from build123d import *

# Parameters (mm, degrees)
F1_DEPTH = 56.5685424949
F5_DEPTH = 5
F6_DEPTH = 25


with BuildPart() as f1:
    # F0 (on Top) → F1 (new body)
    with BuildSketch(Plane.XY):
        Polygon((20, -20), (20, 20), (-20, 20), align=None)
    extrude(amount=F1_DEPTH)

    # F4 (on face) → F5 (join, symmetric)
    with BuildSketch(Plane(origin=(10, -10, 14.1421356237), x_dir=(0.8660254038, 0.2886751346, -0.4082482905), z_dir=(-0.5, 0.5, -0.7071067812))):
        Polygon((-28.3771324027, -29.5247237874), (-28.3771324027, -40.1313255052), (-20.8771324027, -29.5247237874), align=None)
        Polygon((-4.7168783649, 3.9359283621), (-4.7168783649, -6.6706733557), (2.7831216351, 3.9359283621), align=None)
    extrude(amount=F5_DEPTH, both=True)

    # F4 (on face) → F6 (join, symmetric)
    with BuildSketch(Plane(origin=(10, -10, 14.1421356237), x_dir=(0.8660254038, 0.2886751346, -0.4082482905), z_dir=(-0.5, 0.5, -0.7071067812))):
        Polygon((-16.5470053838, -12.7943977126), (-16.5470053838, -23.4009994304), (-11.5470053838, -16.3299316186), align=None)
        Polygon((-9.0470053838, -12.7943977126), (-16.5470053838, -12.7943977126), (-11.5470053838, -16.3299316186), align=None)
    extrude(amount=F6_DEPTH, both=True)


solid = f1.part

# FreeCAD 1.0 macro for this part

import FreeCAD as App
import Part
import Sketcher

V = App.Vector
Q = App.Units.Quantity

doc = App.newDocument("Part")
body = doc.addObject("PartDesign::Body", "Body")

sketch1 = body.newObject("Sketcher::SketchObject", "Sketch")
sketch1.AttachmentSupport = (doc.getObject("XY_Plane"), [""])
sketch1.MapMode = "FlatFace"
sketch1.addGeometry(Part.LineSegment(V(20, -20, 0), V(20, 20, 0)), False)
sketch1.addGeometry(Part.LineSegment(V(20, 20, 0), V(-20, 20, 0)), False)
sketch1.addGeometry(Part.LineSegment(V(-20, 20, 0), V(20, -20, 0)), False)
sketch1.addConstraint(Sketcher.Constraint("Coincident", 0, 2, 1, 1))
sketch1.addConstraint(Sketcher.Constraint("Coincident", 1, 2, 2, 1))
sketch1.addConstraint(Sketcher.Constraint("Coincident", 2, 2, 0, 1))
sketch1.addConstraint(Sketcher.Constraint("Vertical", 0))
sketch1.addConstraint(Sketcher.Constraint("Horizontal", 1))
sketch1.addConstraint(Sketcher.Constraint("Symmetric", 1, 2, 2, 2, -1, 1))
sketch1.addConstraint(Sketcher.Constraint("Equal", 1, 0))
sketch1.addConstraint(Sketcher.Constraint("DistanceX", 1, 2, 1, 1, Q("40 mm")))
pad1 = body.newObject("PartDesign::Pad", "Pad")
pad1.Profile = sketch1
pad1.Length = 56.568542

sketch2 = body.newObject("Sketcher::SketchObject", "Sketch001")
sketch2.Placement = App.Placement(V(10, -10, 14.142136), App.Rotation(V(0.866025404, 0.288675135, -0.40824829), V(0, -0.816496581, -0.57735027), V(-0.5, 0.5, -0.707106781), "ZXY"))
sketch2.addGeometry(Part.LineSegment(V(-28, -30, 0), V(-28, -40, 0)), False)
sketch2.addGeometry(Part.LineSegment(V(-28, -40, 0), V(-21, -30, 0)), False)
sketch2.addGeometry(Part.LineSegment(V(-21, -30, 0), V(-28, -30, 0)), False)
sketch2.addGeometry(Part.LineSegment(V(-5, 4, 0), V(-5, -7, 0)), False)
sketch2.addGeometry(Part.LineSegment(V(-5, -7, 0), V(3, 4, 0)), False)
sketch2.addGeometry(Part.LineSegment(V(3, 4, 0), V(-5, 4, 0)), False)
sketch2.addConstraint(Sketcher.Constraint("Coincident", 0, 2, 1, 1))
sketch2.addConstraint(Sketcher.Constraint("Coincident", 1, 2, 2, 1))
sketch2.addConstraint(Sketcher.Constraint("Coincident", 2, 2, 0, 1))
sketch2.addConstraint(Sketcher.Constraint("Coincident", 3, 2, 4, 1))
sketch2.addConstraint(Sketcher.Constraint("Coincident", 4, 2, 5, 1))
sketch2.addConstraint(Sketcher.Constraint("Coincident", 5, 2, 3, 1))
sketch2.addConstraint(Sketcher.Constraint("Vertical", 0))
sketch2.addConstraint(Sketcher.Constraint("Horizontal", 2))
sketch2.addConstraint(Sketcher.Constraint("Vertical", 3))
sketch2.addConstraint(Sketcher.Constraint("Horizontal", 5))
sketch2.addConstraint(Sketcher.Constraint("Parallel", 1, 4))
sketch2.addConstraint(Sketcher.Constraint("Equal", 2, 5))
sketch2.addConstraint(Sketcher.Constraint("DistanceX", 2, 2, 2, 1, Q("7.5 mm")))
sketch2.addConstraint(Sketcher.Constraint("DistanceY", 0, 2, 0, 1, Q("10.606602 mm")))
sketch2.addConstraint(Sketcher.Constraint("DistanceX", 3, 2, -1, 1, Q("4.716878 mm")))
sketch2.addConstraint(Sketcher.Constraint("DistanceY", -1, 1, 4, 2, Q("3.935928 mm")))
sketch2.addConstraint(Sketcher.Constraint("DistanceY", 1, 2, 3, 2, Q("22.85405 mm")))
sketch2.addConstraint(Sketcher.Constraint("DistanceX", 0, 2, -1, 1, Q("28.377132 mm")))
pad2 = body.newObject("PartDesign::Pad", "Pad001")
pad2.Profile = sketch2
pad2.Length = 10
pad2.Midplane = True

sketch3 = body.newObject("Sketcher::SketchObject", "Sketch002")
sketch3.Placement = App.Placement(V(10, -10, 14.142136), App.Rotation(V(0.866025404, 0.288675135, -0.40824829), V(0, -0.816496581, -0.57735027), V(-0.5, 0.5, -0.707106781), "ZXY"))
sketch3.addGeometry(Part.LineSegment(V(-16.5, -12.8, 0), V(-16.5, -23.4, 0)), False)
sketch3.addGeometry(Part.LineSegment(V(-16.5, -23.4, 0), V(-11.5, -16.3, 0)), False)
sketch3.addGeometry(Part.LineSegment(V(-11.5, -16.3, 0), V(-9, -12.8, 0)), False)
sketch3.addGeometry(Part.LineSegment(V(-9, -12.8, 0), V(-16.5, -12.8, 0)), False)
sketch3.addConstraint(Sketcher.Constraint("Coincident", 0, 2, 1, 1))
sketch3.addConstraint(Sketcher.Constraint("Coincident", 1, 2, 2, 1))
sketch3.addConstraint(Sketcher.Constraint("Coincident", 2, 2, 3, 1))
sketch3.addConstraint(Sketcher.Constraint("Coincident", 3, 2, 0, 1))
sketch3.addConstraint(Sketcher.Constraint("Vertical", 0))
sketch3.addConstraint(Sketcher.Constraint("Horizontal", 3))
sketch3.addConstraint(Sketcher.Constraint("Parallel", 1, 2))
sketch3.addConstraint(Sketcher.Constraint("DistanceX", 3, 2, 3, 1, Q("7.5 mm")))
sketch3.addConstraint(Sketcher.Constraint("DistanceX", 0, 2, 1, 2, Q("5 mm")))
sketch3.addConstraint(Sketcher.Constraint("DistanceY", 0, 2, 0, 1, Q("10.606602 mm")))
sketch3.addConstraint(Sketcher.Constraint("DistanceY", 0, 2, -1, 1, Q("23.400999 mm")))
sketch3.addConstraint(Sketcher.Constraint("DistanceX", 0, 2, -1, 1, Q("16.547005 mm")))
pad3 = body.newObject("PartDesign::Pad", "Pad002")
pad3.Profile = sketch3
pad3.Length = 50
pad3.Midplane = True

doc.recompute()
